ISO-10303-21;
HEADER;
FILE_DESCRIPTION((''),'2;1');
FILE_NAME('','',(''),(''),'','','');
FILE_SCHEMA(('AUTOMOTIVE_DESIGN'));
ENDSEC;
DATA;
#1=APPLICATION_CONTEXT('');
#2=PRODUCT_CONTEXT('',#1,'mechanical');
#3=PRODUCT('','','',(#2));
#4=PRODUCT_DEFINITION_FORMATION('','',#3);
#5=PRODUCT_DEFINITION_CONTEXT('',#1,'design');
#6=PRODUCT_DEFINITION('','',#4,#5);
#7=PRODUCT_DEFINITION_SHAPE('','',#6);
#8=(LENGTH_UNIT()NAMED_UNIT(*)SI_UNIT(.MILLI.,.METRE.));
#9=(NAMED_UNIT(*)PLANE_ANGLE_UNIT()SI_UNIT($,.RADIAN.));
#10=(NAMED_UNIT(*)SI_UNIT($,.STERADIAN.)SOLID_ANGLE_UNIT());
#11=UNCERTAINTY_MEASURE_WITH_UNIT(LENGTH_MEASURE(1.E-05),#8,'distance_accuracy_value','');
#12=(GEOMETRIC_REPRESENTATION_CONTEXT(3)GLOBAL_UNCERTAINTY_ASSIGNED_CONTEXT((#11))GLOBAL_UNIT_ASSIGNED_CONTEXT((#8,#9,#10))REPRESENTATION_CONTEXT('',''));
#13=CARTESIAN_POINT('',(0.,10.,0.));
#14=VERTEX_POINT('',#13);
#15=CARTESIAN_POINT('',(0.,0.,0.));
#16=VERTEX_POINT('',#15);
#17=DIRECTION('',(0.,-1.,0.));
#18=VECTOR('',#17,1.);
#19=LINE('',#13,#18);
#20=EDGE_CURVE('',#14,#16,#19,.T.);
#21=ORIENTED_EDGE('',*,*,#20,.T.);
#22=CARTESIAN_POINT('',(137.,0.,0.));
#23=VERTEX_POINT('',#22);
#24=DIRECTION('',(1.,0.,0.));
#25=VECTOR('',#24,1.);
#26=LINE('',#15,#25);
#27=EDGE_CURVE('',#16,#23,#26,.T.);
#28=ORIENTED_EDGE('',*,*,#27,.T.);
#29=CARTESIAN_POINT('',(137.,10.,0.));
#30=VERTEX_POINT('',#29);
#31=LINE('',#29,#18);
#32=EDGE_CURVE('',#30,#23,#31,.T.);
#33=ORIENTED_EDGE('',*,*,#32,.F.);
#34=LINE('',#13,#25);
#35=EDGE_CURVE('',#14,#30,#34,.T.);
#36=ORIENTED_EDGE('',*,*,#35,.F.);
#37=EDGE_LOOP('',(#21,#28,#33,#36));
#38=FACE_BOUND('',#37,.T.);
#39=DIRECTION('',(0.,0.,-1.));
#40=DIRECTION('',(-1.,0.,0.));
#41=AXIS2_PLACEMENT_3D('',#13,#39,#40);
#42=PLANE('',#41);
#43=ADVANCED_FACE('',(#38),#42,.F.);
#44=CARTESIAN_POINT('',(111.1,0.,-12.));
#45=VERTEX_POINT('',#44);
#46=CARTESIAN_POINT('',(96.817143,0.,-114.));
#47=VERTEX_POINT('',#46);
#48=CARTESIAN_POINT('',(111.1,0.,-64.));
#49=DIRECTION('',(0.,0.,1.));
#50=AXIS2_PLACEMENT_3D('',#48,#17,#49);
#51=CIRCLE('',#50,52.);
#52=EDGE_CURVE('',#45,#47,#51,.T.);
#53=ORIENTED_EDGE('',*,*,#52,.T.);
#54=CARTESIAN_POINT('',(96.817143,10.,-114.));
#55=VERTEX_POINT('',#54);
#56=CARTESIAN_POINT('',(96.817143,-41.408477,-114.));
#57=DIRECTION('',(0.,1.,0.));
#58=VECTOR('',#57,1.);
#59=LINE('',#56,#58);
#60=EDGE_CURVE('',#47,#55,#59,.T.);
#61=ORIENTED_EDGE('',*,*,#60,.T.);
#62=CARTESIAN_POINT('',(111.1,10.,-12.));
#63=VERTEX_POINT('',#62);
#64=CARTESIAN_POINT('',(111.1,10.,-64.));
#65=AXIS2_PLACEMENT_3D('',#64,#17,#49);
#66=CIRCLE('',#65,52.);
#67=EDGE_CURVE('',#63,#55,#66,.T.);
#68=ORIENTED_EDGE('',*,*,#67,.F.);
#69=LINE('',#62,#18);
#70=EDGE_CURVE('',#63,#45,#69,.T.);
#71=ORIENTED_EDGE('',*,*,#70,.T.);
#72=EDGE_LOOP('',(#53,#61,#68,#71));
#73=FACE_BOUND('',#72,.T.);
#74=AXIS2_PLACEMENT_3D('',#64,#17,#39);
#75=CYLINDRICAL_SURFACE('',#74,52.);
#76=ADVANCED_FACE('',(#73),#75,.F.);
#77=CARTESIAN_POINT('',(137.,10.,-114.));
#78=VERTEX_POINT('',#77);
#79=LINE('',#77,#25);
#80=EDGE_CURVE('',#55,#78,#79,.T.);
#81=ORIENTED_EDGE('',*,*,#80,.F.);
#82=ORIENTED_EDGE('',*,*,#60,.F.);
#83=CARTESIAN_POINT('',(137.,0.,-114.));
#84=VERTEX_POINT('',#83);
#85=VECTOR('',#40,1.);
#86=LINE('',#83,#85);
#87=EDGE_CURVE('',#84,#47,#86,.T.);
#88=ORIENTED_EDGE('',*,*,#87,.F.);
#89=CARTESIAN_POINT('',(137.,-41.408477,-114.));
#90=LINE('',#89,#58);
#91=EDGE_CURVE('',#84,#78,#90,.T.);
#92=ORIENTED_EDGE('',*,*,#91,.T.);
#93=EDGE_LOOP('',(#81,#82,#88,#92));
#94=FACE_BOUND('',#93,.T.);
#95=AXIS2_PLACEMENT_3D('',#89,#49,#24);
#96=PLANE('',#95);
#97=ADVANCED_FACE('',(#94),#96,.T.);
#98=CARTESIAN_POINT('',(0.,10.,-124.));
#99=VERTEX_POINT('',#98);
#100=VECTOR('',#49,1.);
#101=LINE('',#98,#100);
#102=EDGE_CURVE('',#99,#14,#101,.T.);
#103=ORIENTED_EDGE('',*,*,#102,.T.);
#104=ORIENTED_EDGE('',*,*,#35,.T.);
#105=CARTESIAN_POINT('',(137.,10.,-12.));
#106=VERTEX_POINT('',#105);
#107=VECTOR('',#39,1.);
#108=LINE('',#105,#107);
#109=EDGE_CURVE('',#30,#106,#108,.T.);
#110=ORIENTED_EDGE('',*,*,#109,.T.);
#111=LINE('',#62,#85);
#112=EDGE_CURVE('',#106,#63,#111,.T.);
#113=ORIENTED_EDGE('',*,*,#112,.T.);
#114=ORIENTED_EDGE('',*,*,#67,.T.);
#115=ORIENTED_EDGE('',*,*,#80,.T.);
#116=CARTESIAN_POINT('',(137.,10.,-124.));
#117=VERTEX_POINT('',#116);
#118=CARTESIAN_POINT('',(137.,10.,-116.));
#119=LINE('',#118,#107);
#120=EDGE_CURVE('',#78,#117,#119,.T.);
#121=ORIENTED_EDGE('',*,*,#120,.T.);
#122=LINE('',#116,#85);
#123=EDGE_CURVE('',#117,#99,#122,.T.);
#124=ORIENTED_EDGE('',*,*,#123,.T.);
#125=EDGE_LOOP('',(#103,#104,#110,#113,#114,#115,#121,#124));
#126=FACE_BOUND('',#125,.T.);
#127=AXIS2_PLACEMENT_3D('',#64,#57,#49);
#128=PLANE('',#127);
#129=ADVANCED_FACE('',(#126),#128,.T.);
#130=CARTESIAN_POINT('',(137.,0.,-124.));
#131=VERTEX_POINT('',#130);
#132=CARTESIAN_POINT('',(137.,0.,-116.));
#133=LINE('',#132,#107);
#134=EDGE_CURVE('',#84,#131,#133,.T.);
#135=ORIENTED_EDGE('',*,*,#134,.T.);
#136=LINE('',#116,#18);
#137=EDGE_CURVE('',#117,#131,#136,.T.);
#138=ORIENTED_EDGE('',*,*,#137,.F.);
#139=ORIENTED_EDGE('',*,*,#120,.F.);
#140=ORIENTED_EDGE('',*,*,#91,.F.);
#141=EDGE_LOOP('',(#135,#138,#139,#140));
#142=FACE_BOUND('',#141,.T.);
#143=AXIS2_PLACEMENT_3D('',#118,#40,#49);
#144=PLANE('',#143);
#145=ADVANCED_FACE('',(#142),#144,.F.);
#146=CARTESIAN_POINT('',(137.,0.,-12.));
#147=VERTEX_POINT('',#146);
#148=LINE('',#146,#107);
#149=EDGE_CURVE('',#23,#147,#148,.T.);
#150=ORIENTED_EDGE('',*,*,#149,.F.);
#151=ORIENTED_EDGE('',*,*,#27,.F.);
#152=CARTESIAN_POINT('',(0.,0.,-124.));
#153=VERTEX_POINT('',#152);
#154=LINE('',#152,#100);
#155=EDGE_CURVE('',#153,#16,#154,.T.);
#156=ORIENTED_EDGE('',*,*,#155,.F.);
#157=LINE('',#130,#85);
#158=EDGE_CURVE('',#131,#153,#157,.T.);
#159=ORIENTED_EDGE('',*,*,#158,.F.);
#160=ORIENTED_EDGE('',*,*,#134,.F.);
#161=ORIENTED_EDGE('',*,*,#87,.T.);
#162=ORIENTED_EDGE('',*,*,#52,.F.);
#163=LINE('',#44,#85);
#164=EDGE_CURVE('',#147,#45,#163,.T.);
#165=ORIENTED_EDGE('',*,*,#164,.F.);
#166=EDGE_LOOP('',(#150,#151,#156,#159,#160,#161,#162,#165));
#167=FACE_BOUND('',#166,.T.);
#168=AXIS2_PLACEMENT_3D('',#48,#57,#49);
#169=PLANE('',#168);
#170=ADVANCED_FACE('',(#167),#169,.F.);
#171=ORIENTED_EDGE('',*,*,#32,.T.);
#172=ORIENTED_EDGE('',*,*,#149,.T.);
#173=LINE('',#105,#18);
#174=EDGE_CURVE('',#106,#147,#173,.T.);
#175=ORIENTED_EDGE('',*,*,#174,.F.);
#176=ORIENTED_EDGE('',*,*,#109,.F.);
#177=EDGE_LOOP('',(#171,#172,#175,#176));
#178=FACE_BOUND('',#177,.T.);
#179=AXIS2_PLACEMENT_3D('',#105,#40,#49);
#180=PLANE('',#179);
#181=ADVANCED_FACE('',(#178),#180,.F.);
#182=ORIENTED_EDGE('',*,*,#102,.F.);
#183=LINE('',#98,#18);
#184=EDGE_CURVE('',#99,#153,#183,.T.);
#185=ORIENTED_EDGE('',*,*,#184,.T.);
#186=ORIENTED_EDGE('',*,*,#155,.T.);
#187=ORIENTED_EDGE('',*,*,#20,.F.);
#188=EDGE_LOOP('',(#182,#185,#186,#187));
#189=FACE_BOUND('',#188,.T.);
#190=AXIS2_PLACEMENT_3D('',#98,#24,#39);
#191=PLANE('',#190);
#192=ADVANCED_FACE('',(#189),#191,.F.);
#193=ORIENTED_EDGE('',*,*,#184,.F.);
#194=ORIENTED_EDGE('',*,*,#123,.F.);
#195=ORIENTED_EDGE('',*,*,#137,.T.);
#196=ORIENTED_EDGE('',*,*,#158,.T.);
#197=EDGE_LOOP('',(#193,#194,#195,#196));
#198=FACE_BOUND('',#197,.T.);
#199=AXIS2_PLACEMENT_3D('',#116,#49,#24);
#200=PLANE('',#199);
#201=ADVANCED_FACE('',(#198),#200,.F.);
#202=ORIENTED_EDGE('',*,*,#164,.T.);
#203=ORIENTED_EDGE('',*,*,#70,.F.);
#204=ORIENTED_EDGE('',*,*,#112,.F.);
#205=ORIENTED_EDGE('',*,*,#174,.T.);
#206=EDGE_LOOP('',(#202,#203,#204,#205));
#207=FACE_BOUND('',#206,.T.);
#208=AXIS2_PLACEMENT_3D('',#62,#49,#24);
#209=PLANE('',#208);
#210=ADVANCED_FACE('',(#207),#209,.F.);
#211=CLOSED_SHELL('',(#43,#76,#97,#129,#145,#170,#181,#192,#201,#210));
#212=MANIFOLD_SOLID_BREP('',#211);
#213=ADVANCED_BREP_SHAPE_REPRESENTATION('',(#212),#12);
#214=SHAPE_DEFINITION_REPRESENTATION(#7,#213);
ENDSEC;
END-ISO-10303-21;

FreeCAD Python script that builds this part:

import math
import FreeCAD as App
import Part
import Sketcher
from FreeCAD import Vector
Q = App.Units.Quantity


def add_polygon(sketch, points):
    """Adds a closed chain of lines whose ends are joined by coincident constraints."""
    first, n = sketch.GeometryCount, len(points)
    for a, b in zip(points, points[1:] + points[:1]):
        sketch.addGeometry(Part.LineSegment(App.Vector(*a, 0), App.Vector(*b, 0)), False)
    for i in range(n):
        sketch.addConstraint(Sketcher.Constraint("Coincident", first + i, 2, first + (i + 1) % n, 1))

doc = App.newDocument("Part")
body = doc.addObject("PartDesign::Body", "Body")

sketch1 = body.newObject("Sketcher::SketchObject", "Sketch")
sketch1.AttachmentSupport = (doc.getObject("XZ_Plane"), [""])
sketch1.MapMode = "FlatFace"
sketch1.addGeometry([
    Part.LineSegment(Vector(137, -124, 0), Vector(0, -124, 0)),
    Part.LineSegment(Vector(0, -124, 0), Vector(0, 0, 0)),
    Part.LineSegment(Vector(0, 0, 0), Vector(137, 0, 0)),
    Part.LineSegment(Vector(137, 0, 0), Vector(137, -12, 0)),
    Part.LineSegment(Vector(137, -12, 0), Vector(111, -12, 0)),
    Part.ArcOfCircle(Part.Circle(Vector(111, -64, 0), Vector(0, 0, 1), 52), math.radians(90), math.radians(270)),
    Part.LineSegment(Vector(111, -116, 0), Vector(137, -116, 0)),
    Part.LineSegment(Vector(137, -116, 0), Vector(137, -124, 0)),
], False)
sketch1.addConstraint([
    Sketcher.Constraint("Coincident", 0, 2, 1, 1),
    Sketcher.Constraint("Coincident", 1, 2, 2, 1),
    Sketcher.Constraint("Coincident", 2, 2, 3, 1),
    Sketcher.Constraint("Coincident", 3, 2, 4, 1),
    Sketcher.Constraint("Tangent", 4, 2, 5, 1),
    Sketcher.Constraint("Tangent", 5, 2, 6, 1),
    Sketcher.Constraint("Coincident", 6, 2, 7, 1),
    Sketcher.Constraint("Coincident", 7, 2, 0, 1),
    Sketcher.Constraint("Horizontal", 0),
    Sketcher.Constraint("Vertical", 1),
    Sketcher.Constraint("Horizontal", 2),
    Sketcher.Constraint("Vertical", 3),
    Sketcher.Constraint("Horizontal", 4),
    Sketcher.Constraint("Horizontal", 6),
    Sketcher.Constraint("Vertical", 7),
    Sketcher.Constraint("Coincident", 1, 2, -1, 1),
    Sketcher.Constraint("Vertical", 3, 2, 6, 2),
    Sketcher.Constraint("Radius", 5, Q("52 mm")),
    Sketcher.Constraint("DistanceX", 0, 2, 0, 1, Q("137 mm")),
    Sketcher.Constraint("DistanceY", 1, 1, 1, 2, Q("124 mm")),
    Sketcher.Constraint("DistanceY", 3, 2, 3, 1, Q("12 mm")),
    Sketcher.Constraint("DistanceX", 4, 2, 4, 1, Q("25.9 mm")),
])
pad1 = body.newObject("PartDesign::Pad", "Pad")
pad1.Profile = sketch1
pad1.Length = 10
pad1.Reversed = True

sketch2 = body.newObject("Sketcher::SketchObject", "Sketch001")
sketch2.AttachmentSupport = (doc.getObject("XZ_Plane"), [""])
sketch2.MapMode = "FlatFace"
sketch2.AttachmentOffset = App.Placement(Vector(0, 0, -10), App.Rotation())
add_polygon(sketch2, [(97, -124), (97, -114), (137, -114), (137, -124)])
sketch2.addConstraint([
    Sketcher.Constraint("Vertical", 0),
    Sketcher.Constraint("Horizontal", 1),
    Sketcher.Constraint("Vertical", 2),
    Sketcher.Constraint("Horizontal", 3),
    Sketcher.Constraint("DistanceY", 0, 1, 0, 2, Q("10 mm")),
    Sketcher.Constraint("DistanceY", 0, 2, -1, 1, Q("114 mm")),
    Sketcher.Constraint("DistanceX", -1, 1, 1, 2, Q("137 mm")),
    Sketcher.Constraint("DistanceX", 1, 1, 1, 2, Q("40.182857 mm")),
])
pad2 = body.newObject("PartDesign::Pad", "Pad001")
pad2.Profile = sketch2
pad2.Length = 10

doc.recompute()
